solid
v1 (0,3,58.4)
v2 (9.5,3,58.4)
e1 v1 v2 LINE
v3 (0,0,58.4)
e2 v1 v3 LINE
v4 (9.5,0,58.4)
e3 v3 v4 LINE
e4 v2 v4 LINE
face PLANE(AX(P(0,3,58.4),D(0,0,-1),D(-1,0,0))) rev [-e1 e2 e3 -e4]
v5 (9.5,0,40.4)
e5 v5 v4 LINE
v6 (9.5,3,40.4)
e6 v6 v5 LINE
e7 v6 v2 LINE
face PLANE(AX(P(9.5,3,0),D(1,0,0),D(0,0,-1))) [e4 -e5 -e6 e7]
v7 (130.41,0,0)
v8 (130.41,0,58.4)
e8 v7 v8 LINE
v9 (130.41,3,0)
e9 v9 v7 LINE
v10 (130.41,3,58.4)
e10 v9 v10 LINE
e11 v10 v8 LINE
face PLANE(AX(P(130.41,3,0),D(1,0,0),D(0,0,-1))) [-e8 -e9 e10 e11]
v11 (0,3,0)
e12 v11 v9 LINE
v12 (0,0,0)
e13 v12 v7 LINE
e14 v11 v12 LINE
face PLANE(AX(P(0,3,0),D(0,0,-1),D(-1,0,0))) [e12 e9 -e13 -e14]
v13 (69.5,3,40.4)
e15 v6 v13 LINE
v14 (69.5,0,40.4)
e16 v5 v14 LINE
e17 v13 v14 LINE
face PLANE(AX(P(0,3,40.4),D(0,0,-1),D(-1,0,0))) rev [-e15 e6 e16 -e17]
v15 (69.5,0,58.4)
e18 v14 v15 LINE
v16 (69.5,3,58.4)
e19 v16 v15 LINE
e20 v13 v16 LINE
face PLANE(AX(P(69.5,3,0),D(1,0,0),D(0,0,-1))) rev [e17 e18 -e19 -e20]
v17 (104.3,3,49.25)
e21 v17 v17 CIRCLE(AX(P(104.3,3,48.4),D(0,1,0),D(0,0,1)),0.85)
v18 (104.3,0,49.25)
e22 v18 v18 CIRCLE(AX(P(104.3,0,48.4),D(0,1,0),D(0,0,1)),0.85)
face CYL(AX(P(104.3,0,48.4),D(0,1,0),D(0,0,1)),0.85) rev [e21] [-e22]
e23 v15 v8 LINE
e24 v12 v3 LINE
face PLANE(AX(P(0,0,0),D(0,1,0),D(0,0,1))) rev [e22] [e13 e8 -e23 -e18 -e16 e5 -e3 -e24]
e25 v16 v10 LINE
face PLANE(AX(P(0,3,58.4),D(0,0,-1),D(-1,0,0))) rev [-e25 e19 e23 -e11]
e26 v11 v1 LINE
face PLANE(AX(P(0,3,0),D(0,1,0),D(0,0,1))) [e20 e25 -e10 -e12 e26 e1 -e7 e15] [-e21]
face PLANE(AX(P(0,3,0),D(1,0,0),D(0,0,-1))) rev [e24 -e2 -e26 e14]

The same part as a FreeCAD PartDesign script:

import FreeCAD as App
import Part
import Sketcher

V = App.Vector

doc = App.newDocument("Part")
body = doc.addObject("PartDesign::Body", "Body")

# Sketch on XZ plane
sketch1 = body.newObject("Sketcher::SketchObject", "Sketch")
sketch1.AttachmentSupport = (doc.getObject("XZ_Plane"), [""])
sketch1.MapMode = "FlatFace"
sketch1.addGeometry(Part.LineSegment(V(130, 0, 0), V(0, 0, 0)), False)
sketch1.addGeometry(Part.LineSegment(V(0, 0, 0), V(0, 58, 0)), False)
sketch1.addGeometry(Part.LineSegment(V(0, 58, 0), V(10, 58, 0)), False)
sketch1.addGeometry(Part.LineSegment(V(10, 58, 0), V(10, 40, 0)), False)
sketch1.addGeometry(Part.LineSegment(V(10, 40, 0), V(70, 40, 0)), False)
sketch1.addGeometry(Part.LineSegment(V(70, 40, 0), V(70, 58, 0)), False)
sketch1.addGeometry(Part.LineSegment(V(70, 58, 0), V(130, 58, 0)), False)
sketch1.addGeometry(Part.LineSegment(V(130, 58, 0), V(130, 0, 0)), False)
sketch1.addConstraint(Sketcher.Constraint("Coincident", 0, 2, 1, 1))
sketch1.addConstraint(Sketcher.Constraint("Coincident", 1, 2, 2, 1))
sketch1.addConstraint(Sketcher.Constraint("Coincident", 2, 2, 3, 1))
sketch1.addConstraint(Sketcher.Constraint("Coincident", 3, 2, 4, 1))
sketch1.addConstraint(Sketcher.Constraint("Coincident", 4, 2, 5, 1))
sketch1.addConstraint(Sketcher.Constraint("Coincident", 5, 2, 6, 1))
sketch1.addConstraint(Sketcher.Constraint("Coincident", 6, 2, 7, 1))
sketch1.addConstraint(Sketcher.Constraint("Coincident", 7, 2, 0, 1))
sketch1.addConstraint(Sketcher.Constraint("Horizontal", 0))
sketch1.addConstraint(Sketcher.Constraint("Vertical", 1))
sketch1.addConstraint(Sketcher.Constraint("Horizontal", 2))
sketch1.addConstraint(Sketcher.Constraint("Vertical", 3))
sketch1.addConstraint(Sketcher.Constraint("Horizontal", 4))
sketch1.addConstraint(Sketcher.Constraint("Vertical", 5))
sketch1.addConstraint(Sketcher.Constraint("Horizontal", 6))
sketch1.addConstraint(Sketcher.Constraint("Vertical", 7))
sketch1.addConstraint(Sketcher.Constraint("Coincident", 0, 2, -1, 1))
sketch1.addConstraint(Sketcher.Constraint("Horizontal", 2, 2, 5, 2))
sketch1.addConstraint(Sketcher.Constraint("DistanceX", 4, 1, 4, 2, 60.0))
sketch1.addConstraint(Sketcher.Constraint("DistanceY", 3, 2, 3, 1, 18.0))
sketch1.addConstraint(Sketcher.Constraint("DistanceX", 2, 1, 2, 2, 9.5))
sketch1.addConstraint(Sketcher.Constraint("DistanceY", 1, 1, 1, 2, 58.4))
sketch1.addConstraint(Sketcher.Constraint("DistanceX", 0, 2, 0, 1, 130.41))
pad1 = body.newObject("PartDesign::Pad", "Pad")
pad1.Profile = sketch1
pad1.Length = 3
pad1.Reversed = True

# Sketch on XZ plane
sketch2 = body.newObject("Sketcher::SketchObject", "Sketch001")
sketch2.AttachmentSupport = (doc.getObject("XZ_Plane"), [""])
sketch2.MapMode = "FlatFace"
sketch2.AttachmentOffset = App.Placement(V(0, 0, -3), App.Rotation())
sketch2.addGeometry(Part.Circle(V(104.3, 48.4, 0), V(0, 0, 1), 0.8), False)
sketch2.addConstraint(Sketcher.Constraint("Diameter", 0, 1.7))
sketch2.addConstraint(Sketcher.Constraint("DistanceX", -1, 1, 0, 3, 104.3))
sketch2.addConstraint(Sketcher.Constraint("DistanceY", -1, 1, 0, 3, 48.4))
pocket1 = body.newObject("PartDesign::Pocket", "Pocket")
pocket1.Profile = sketch2
pocket1.Type = "ThroughAll"
pocket1.Reversed = True

doc.recompute()
